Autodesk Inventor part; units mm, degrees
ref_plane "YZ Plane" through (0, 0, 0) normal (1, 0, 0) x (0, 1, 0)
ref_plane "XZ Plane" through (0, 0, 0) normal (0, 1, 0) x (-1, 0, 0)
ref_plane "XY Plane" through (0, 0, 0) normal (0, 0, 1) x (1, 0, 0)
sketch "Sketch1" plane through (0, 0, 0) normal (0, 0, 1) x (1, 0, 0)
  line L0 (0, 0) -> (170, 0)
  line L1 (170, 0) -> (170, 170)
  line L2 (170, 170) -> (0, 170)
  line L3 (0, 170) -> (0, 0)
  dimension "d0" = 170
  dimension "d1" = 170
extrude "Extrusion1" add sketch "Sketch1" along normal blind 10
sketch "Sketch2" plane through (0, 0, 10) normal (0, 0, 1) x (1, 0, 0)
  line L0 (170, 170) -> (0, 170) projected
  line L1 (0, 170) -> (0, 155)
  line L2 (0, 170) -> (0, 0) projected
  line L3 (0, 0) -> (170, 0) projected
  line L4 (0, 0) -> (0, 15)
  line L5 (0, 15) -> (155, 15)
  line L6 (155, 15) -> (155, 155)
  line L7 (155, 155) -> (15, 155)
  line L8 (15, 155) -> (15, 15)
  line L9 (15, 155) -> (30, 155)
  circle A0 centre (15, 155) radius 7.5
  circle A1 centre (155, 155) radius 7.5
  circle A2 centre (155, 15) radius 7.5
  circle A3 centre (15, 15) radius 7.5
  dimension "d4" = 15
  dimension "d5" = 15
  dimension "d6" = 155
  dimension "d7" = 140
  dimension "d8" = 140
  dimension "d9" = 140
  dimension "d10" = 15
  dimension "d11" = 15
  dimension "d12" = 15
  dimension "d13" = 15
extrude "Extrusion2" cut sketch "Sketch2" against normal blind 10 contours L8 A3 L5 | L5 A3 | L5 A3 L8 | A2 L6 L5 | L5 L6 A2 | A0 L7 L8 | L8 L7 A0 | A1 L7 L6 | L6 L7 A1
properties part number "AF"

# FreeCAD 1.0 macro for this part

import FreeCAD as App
import Part
import Sketcher

V = App.Vector


def add_polygon(sketch, points):
    """Adds a closed chain of lines whose ends are joined by coincident constraints."""
    first, n = sketch.GeometryCount, len(points)
    for a, b in zip(points, points[1:] + points[:1]):
        sketch.addGeometry(Part.LineSegment(App.Vector(*a, 0), App.Vector(*b, 0)), False)
    for i in range(n):
        sketch.addConstraint(Sketcher.Constraint("Coincident", first + i, 2, first + (i + 1) % n, 1))

doc = App.newDocument("Part")
body = doc.addObject("PartDesign::Body", "Body")

# Sketch on XY plane
sketch1 = body.newObject("Sketcher::SketchObject", "Sketch")
sketch1.AttachmentSupport = (doc.getObject("XY_Plane"), [""])
sketch1.MapMode = "FlatFace"
add_polygon(sketch1, [(0, 170), (0, 0), (170, 0), (170, 170)])  # lines 0-3
sketch1.addConstraint(Sketcher.Constraint("Vertical", 0))
sketch1.addConstraint(Sketcher.Constraint("Horizontal", 1))
sketch1.addConstraint(Sketcher.Constraint("Vertical", 2))
sketch1.addConstraint(Sketcher.Constraint("Horizontal", 3))
sketch1.addConstraint(Sketcher.Constraint("Coincident", 0, 2, -1, 1))
sketch1.addConstraint(Sketcher.Constraint("Equal", 3, 0))
sketch1.addConstraint(Sketcher.Constraint("DistanceX", 1, 1, 1, 2, 170.0))
pad1 = body.newObject("PartDesign::Pad", "Pad")
pad1.Profile = sketch1
pad1.Length = 10

# Sketch on XY plane
sketch2 = body.newObject("Sketcher::SketchObject", "Sketch001")
sketch2.AttachmentSupport = (doc.getObject("XY_Plane"), [""])
sketch2.MapMode = "FlatFace"
sketch2.AttachmentOffset = App.Placement(V(0, 0, 10), App.Rotation())
sketch2.addGeometry(Part.Circle(V(15, 15, 0), V(0, 0, 1), 8), False)
sketch2.addGeometry(Part.Circle(V(155, 15, 0), V(0, 0, 1), 8), False)
sketch2.addGeometry(Part.Circle(V(15, 155, 0), V(0, 0, 1), 8), False)
sketch2.addGeometry(Part.Circle(V(155, 155, 0), V(0, 0, 1), 8), False)
sketch2.addConstraint(Sketcher.Constraint("Equal", 0, 1))
sketch2.addConstraint(Sketcher.Constraint("Equal", 1, 2))
sketch2.addConstraint(Sketcher.Constraint("Equal", 2, 3))
sketch2.addConstraint(Sketcher.Constraint("Horizontal", 0, 3, 1, 3))
sketch2.addConstraint(Sketcher.Constraint("Horizontal", 2, 3, 3, 3))
sketch2.addConstraint(Sketcher.Constraint("Vertical", 0, 3, 2, 3))
sketch2.addConstraint(Sketcher.Constraint("Vertical", 1, 3, 3, 3))
sketch2.addConstraint(Sketcher.Constraint("Diameter", 0, 15.0))
sketch2.addConstraint(Sketcher.Constraint("DistanceX", -1, 1, 0, 3, 15.0))
sketch2.addConstraint(Sketcher.Constraint("DistanceY", -1, 1, 0, 3, 15.0))
sketch2.addConstraint(Sketcher.Constraint("DistanceX", -1, 1, 1, 3, 155.0))
sketch2.addConstraint(Sketcher.Constraint("DistanceY", -1, 1, 2, 3, 155.0))
pocket1 = body.newObject("PartDesign::Pocket", "Pocket")
pocket1.Profile = sketch2
pocket1.Length = 10

doc.recompute()
